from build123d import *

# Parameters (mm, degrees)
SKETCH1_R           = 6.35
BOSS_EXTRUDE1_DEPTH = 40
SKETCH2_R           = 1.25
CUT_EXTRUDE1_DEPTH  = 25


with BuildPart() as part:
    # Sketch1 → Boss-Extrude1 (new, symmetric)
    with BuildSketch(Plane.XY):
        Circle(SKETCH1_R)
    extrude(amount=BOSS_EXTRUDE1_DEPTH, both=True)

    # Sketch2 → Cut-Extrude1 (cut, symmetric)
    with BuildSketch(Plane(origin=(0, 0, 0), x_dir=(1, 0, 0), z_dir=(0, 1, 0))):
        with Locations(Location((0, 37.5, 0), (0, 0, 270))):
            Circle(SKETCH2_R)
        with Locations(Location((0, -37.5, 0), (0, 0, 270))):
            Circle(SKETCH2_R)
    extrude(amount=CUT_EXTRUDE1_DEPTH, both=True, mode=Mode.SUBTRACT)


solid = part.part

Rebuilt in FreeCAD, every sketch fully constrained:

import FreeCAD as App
import Part
import Sketcher

V = App.Vector
Q = App.Units.Quantity

doc = App.newDocument("Part")
body = doc.addObject("PartDesign::Body", "Body")

# Sketch on XY plane
sketch1 = body.newObject("Sketcher::SketchObject", "Sketch")
sketch1.AttachmentSupport = (doc.getObject("XY_Plane"), [""])
sketch1.MapMode = "FlatFace"
sketch1.addGeometry(Part.Circle(V(0, 0, 0), V(0, 0, 1), 6.35), False)
sketch1.addConstraint([
    Sketcher.Constraint("Coincident", 0, 3, -1, 1),
    Sketcher.Constraint("Diameter", 0, Q("12.7 mm")),
])
pad1 = body.newObject("PartDesign::Pad", "Pad")
pad1.Profile = sketch1
pad1.Length = 80
pad1.Midplane = True

# Sketch on XZ plane
sketch2 = body.newObject("Sketcher::SketchObject", "Sketch001")
sketch2.AttachmentSupport = (doc.getObject("XZ_Plane"), [""])
sketch2.MapMode = "FlatFace"
sketch2.addGeometry([
    Part.Circle(V(0, -37.5, 0), V(0, 0, 1), 1.25),
    Part.Circle(V(0, 37.5, 0), V(0, 0, 1), 1.25),
], False)
sketch2.addConstraint([
    Sketcher.Constraint("Equal", 0, 1),
    Sketcher.Constraint("Symmetric", 0, 3, 1, 3, -1, 1),
    Sketcher.Constraint("PointOnObject", 0, 3, -2),
    Sketcher.Constraint("Diameter", 0, Q("2.5 mm")),
    Sketcher.Constraint("DistanceY", 0, 3, 1, 3, Q("75 mm")),
])
pocket1 = body.newObject("PartDesign::Pocket", "Pocket")
pocket1.Profile = sketch2
pocket1.Length = 50
pocket1.Midplane = True

doc.recompute()
